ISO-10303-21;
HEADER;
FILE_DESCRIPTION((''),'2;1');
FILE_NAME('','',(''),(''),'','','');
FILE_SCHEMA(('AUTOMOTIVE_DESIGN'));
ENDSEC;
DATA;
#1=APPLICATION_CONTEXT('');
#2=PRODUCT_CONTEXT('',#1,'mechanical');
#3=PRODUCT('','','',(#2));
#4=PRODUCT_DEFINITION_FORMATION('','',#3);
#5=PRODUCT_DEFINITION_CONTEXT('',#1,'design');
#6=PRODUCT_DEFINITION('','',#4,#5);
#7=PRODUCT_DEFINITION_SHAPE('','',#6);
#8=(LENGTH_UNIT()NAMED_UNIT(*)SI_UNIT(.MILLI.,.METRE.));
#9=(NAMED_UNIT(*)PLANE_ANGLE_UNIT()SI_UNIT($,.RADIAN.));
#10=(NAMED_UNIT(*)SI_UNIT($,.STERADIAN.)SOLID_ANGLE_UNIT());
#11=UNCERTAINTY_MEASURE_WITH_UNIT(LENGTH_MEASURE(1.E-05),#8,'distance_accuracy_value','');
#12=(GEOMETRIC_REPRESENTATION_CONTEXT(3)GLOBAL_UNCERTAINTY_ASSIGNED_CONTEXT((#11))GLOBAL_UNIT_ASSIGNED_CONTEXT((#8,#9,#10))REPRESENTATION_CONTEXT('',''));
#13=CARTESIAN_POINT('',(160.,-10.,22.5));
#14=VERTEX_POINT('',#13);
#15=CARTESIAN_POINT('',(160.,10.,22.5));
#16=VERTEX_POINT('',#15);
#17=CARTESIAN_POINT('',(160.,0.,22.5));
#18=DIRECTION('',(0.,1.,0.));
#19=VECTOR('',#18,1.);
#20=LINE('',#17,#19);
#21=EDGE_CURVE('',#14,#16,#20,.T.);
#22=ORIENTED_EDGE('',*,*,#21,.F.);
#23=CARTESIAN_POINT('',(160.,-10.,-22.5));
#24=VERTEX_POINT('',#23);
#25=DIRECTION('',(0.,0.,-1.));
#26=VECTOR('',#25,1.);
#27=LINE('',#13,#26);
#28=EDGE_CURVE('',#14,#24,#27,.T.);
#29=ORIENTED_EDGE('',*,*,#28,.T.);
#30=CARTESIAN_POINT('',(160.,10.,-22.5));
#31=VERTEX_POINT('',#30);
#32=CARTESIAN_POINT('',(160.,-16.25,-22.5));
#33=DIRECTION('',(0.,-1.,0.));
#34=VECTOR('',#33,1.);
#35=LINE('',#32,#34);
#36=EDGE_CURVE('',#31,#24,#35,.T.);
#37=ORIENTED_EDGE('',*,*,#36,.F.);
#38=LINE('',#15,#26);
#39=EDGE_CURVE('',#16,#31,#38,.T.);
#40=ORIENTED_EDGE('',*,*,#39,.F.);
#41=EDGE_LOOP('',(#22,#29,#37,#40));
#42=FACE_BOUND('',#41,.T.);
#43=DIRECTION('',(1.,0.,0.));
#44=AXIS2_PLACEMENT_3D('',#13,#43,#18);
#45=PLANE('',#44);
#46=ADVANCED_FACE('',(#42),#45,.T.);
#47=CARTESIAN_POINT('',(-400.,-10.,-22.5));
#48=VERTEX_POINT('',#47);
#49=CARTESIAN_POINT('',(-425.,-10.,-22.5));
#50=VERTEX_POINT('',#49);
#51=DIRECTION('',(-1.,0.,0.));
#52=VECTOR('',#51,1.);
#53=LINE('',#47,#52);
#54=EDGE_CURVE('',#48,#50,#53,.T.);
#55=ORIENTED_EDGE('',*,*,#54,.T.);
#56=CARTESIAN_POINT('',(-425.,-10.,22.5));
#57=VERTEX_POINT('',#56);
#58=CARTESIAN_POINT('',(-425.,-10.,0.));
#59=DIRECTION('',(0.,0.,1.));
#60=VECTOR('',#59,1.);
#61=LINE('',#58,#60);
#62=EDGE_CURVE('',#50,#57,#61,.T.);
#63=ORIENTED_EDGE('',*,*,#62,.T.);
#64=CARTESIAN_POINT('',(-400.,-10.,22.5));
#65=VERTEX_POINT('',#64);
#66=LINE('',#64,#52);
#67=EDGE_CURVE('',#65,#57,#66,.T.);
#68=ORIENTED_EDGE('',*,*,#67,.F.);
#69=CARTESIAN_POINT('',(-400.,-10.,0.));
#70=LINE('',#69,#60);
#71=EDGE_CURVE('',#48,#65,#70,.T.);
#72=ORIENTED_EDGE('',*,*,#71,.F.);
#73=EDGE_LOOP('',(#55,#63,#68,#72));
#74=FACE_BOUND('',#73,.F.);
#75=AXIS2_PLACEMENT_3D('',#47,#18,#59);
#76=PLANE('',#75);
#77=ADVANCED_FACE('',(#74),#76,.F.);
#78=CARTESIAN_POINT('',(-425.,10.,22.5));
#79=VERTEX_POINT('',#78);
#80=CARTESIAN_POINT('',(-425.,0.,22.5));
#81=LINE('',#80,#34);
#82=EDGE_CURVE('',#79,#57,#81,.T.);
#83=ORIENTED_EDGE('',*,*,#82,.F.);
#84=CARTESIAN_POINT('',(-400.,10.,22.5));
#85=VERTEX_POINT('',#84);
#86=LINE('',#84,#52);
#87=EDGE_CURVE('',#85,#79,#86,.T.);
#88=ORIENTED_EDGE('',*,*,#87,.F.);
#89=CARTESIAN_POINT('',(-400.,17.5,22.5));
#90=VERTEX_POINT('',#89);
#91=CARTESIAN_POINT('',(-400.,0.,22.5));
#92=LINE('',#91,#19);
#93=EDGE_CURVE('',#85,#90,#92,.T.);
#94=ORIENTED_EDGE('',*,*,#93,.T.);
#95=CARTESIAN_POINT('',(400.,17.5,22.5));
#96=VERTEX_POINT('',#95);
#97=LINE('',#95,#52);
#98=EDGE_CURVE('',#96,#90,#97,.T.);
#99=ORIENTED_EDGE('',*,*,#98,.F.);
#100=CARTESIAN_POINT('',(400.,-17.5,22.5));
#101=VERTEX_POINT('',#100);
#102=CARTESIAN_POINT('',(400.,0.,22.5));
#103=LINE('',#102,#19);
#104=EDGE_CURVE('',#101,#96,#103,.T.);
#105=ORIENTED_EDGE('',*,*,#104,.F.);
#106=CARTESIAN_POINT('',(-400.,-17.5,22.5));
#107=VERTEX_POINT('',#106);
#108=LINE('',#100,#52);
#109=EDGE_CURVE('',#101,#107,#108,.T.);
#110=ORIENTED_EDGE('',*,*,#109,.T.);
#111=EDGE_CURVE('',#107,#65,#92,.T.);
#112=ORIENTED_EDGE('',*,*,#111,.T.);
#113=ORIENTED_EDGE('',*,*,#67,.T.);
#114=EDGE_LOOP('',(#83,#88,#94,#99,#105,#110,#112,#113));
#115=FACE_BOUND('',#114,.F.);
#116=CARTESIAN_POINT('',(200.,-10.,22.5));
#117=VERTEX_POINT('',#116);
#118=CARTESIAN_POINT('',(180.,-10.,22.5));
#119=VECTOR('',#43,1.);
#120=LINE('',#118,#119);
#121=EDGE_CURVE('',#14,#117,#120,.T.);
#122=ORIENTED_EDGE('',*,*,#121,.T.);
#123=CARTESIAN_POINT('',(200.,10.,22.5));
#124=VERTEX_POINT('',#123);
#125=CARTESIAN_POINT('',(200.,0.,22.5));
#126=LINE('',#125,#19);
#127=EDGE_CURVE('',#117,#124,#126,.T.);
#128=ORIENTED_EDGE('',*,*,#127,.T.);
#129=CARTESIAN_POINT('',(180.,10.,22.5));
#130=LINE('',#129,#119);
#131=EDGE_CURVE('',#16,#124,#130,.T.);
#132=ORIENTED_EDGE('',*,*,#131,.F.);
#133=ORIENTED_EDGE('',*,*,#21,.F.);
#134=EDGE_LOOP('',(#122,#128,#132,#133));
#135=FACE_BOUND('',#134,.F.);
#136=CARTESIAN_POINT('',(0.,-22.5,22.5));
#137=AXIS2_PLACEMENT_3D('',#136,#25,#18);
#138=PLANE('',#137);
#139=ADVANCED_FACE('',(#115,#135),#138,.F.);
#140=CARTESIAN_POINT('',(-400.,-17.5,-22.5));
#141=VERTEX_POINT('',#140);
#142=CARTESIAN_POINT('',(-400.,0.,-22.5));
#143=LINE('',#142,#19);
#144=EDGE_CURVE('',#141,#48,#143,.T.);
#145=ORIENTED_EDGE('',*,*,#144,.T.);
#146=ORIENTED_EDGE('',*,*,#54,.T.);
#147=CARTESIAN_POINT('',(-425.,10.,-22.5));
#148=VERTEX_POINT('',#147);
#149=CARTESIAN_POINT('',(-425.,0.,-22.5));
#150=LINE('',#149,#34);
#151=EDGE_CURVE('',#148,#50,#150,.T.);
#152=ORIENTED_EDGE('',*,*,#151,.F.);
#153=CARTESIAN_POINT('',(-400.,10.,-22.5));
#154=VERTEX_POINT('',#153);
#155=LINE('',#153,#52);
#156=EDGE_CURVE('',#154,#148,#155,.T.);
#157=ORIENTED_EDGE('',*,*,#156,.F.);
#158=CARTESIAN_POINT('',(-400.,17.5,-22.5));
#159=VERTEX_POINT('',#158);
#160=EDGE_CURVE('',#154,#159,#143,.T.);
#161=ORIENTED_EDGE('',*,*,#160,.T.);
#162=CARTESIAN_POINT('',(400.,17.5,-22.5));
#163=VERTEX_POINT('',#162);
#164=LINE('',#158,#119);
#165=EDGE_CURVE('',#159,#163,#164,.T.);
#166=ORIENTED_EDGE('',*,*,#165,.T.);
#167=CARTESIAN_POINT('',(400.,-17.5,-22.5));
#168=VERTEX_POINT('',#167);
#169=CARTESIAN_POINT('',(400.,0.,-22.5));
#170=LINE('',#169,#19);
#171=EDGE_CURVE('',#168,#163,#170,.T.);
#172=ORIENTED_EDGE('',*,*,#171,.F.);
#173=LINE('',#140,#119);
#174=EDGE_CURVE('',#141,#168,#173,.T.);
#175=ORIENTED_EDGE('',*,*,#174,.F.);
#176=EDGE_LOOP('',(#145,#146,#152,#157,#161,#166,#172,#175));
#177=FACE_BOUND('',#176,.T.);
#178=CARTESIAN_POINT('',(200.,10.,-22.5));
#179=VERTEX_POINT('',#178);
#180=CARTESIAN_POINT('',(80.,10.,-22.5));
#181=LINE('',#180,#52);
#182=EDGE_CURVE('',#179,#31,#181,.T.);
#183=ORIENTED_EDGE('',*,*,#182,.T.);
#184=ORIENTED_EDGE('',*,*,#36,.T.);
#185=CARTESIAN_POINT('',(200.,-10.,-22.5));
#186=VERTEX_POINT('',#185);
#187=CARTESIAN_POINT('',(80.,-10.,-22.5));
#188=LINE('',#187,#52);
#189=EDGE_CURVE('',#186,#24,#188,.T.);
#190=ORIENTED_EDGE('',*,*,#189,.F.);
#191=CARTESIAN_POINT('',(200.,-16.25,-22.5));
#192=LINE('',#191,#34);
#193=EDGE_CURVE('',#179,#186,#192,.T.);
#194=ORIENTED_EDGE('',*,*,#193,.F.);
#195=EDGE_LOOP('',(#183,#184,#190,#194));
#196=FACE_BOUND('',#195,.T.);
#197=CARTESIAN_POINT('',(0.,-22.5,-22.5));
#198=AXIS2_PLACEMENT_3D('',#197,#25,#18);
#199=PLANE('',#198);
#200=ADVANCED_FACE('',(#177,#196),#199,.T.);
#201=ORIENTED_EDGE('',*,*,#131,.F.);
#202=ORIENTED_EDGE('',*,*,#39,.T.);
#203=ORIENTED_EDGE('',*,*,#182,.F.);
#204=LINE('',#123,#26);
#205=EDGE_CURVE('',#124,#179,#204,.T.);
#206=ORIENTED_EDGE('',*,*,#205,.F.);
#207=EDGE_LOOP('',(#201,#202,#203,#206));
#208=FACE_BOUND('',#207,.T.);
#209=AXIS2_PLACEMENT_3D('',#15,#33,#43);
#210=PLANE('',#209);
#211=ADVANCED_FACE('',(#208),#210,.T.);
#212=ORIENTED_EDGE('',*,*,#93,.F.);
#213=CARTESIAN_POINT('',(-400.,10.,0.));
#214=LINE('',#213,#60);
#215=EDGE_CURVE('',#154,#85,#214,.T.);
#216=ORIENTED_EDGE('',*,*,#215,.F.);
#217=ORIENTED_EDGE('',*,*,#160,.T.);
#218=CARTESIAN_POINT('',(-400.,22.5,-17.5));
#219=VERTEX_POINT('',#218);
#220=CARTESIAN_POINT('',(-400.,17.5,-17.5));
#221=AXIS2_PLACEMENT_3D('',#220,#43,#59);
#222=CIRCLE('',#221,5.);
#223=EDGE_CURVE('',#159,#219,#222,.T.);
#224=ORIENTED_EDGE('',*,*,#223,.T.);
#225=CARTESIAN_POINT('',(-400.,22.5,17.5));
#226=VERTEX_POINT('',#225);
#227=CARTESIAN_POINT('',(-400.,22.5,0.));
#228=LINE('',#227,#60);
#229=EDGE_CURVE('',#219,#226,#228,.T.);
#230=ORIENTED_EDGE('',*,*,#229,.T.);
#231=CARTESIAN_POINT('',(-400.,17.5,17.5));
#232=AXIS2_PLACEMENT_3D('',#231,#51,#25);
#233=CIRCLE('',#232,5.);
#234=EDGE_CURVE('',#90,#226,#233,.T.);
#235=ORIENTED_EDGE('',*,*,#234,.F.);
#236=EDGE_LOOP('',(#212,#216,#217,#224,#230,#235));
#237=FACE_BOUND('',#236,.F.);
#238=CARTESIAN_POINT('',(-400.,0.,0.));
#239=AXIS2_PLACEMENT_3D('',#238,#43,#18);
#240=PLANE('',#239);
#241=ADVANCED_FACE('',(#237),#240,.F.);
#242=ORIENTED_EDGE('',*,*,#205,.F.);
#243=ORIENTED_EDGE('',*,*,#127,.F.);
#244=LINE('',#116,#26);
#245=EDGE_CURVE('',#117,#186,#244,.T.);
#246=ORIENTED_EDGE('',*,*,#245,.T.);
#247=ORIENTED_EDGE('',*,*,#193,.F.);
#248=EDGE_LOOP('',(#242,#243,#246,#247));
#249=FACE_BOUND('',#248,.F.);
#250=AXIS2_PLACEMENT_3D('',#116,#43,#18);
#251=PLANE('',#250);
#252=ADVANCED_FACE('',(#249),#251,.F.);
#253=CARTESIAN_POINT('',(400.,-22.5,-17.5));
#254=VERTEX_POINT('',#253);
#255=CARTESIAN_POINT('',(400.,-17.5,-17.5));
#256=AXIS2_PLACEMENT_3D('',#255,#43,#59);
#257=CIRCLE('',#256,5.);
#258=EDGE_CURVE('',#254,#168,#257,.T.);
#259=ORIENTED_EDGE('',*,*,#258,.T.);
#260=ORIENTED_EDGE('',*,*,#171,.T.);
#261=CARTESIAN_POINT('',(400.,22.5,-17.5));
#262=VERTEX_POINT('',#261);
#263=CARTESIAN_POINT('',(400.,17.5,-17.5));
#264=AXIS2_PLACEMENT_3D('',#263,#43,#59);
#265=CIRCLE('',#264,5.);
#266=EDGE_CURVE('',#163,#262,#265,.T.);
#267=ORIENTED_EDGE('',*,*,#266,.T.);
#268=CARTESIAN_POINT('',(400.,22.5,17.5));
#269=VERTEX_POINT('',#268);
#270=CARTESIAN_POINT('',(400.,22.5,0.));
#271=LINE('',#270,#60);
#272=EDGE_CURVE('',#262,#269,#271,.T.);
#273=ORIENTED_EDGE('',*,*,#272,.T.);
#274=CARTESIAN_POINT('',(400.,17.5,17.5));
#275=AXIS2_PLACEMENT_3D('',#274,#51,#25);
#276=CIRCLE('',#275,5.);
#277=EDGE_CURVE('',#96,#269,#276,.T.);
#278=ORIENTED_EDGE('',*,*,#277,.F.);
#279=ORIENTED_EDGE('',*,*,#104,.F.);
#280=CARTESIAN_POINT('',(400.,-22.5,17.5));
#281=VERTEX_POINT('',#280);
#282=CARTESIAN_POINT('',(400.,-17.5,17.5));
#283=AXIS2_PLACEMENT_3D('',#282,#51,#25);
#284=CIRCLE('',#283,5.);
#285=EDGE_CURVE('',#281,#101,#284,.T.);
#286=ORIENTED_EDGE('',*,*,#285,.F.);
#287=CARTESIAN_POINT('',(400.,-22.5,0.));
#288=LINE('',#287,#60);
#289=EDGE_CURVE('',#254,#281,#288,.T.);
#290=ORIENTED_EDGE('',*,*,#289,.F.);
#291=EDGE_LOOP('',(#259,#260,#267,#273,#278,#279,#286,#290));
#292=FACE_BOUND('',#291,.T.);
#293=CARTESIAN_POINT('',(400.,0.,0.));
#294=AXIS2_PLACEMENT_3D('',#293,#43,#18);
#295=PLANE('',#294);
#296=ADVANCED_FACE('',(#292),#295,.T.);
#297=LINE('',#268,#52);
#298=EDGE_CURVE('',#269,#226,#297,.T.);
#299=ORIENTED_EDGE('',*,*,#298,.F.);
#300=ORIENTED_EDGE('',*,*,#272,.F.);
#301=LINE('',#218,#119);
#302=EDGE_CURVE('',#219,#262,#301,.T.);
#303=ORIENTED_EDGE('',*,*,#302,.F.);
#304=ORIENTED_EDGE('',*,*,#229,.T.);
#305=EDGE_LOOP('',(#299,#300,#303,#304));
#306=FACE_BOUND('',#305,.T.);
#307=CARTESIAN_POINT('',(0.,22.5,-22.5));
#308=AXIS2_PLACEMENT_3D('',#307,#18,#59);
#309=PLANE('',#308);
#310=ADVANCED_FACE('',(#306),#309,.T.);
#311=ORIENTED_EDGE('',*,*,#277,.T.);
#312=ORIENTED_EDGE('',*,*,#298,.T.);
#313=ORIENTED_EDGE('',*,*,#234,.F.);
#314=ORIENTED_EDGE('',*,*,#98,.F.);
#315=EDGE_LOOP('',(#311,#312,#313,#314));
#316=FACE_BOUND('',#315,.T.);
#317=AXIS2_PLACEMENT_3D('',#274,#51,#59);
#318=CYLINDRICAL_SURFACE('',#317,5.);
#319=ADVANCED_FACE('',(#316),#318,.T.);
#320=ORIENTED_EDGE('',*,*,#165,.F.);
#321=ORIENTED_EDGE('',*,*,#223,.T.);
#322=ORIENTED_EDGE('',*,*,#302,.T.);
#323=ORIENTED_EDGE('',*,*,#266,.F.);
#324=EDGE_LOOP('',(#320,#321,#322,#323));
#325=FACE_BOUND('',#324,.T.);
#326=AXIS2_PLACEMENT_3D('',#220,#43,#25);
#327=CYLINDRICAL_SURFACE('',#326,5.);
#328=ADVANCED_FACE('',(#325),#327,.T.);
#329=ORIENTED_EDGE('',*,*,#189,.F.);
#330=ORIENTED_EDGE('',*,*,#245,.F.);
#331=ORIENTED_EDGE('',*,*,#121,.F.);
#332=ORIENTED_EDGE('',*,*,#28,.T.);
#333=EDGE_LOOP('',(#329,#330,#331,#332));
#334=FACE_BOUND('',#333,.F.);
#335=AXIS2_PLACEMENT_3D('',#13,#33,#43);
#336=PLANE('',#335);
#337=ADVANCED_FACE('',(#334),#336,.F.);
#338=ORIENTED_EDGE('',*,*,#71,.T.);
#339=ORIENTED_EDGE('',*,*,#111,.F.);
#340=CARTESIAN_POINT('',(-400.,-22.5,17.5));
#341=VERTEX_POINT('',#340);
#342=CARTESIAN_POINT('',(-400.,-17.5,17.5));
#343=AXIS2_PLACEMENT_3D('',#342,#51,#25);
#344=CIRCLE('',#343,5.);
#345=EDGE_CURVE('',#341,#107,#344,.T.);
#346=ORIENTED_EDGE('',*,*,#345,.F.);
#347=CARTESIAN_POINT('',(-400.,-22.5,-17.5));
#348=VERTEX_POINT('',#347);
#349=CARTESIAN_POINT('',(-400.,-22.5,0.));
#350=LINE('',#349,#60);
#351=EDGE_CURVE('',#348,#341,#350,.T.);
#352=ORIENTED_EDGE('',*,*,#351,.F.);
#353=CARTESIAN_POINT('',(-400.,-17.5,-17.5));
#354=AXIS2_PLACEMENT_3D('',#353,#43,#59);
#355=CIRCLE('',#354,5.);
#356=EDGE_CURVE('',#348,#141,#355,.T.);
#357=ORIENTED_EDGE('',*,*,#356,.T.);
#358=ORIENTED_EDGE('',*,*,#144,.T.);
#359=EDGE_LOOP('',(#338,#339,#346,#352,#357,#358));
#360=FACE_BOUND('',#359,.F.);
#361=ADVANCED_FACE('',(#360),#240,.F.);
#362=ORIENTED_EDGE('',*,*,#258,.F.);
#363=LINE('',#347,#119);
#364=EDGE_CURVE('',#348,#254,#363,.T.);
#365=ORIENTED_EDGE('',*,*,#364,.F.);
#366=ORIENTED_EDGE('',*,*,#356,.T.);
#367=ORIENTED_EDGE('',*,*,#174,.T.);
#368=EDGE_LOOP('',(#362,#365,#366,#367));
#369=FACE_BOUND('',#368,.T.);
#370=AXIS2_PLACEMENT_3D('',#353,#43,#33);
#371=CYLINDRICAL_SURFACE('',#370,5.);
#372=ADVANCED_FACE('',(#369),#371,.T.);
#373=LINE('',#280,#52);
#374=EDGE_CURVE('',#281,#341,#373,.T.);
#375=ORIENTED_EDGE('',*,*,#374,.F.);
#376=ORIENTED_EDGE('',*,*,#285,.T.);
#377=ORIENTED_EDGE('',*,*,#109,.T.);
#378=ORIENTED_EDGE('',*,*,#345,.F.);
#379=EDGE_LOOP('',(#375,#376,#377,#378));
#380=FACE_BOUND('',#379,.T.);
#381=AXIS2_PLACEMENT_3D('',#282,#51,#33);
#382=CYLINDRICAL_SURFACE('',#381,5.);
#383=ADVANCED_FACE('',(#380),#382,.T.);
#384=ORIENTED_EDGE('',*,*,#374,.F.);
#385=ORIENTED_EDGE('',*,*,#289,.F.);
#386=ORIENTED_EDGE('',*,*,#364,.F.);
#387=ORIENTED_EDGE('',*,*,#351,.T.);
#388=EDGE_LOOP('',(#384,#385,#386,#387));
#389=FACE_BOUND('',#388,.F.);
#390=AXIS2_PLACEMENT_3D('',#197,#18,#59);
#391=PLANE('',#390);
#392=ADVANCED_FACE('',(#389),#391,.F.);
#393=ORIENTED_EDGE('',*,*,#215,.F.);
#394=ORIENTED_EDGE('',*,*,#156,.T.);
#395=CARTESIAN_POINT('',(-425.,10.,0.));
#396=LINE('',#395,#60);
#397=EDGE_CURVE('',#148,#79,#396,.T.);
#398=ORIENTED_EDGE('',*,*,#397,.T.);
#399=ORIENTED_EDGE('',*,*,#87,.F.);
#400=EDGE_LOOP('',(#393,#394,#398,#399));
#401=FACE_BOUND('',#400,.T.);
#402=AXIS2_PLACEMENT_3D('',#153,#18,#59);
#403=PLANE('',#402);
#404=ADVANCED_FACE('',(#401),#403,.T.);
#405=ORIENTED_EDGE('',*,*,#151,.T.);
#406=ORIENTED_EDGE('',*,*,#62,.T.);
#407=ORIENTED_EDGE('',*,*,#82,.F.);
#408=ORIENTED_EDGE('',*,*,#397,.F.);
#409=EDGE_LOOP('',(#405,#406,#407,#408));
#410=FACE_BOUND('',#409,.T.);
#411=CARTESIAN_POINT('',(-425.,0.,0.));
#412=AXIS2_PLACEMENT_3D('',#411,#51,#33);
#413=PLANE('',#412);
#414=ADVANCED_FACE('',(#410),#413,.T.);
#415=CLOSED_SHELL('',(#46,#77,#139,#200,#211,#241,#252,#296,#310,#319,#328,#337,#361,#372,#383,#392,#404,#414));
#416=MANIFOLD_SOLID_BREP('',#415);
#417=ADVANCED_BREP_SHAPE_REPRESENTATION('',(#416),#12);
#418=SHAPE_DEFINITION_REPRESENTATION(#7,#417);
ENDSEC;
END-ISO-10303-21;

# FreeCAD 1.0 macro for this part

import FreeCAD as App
import Part
import Sketcher

V = App.Vector
Q = App.Units.Quantity


def edges_at(feature, points):
    """Names of the edges that pass closest to the given points."""
    edges = feature.Shape.Edges
    near = lambda p: min(range(len(edges)), key=lambda i: edges[i].distToShape(Part.Vertex(*p))[0])
    return sorted({f"Edge{near(p) + 1}" for p in points})


def add_polygon(sketch, points):
    """Adds a closed chain of lines whose ends are joined by coincident constraints."""
    first, n = sketch.GeometryCount, len(points)
    for a, b in zip(points, points[1:] + points[:1]):
        sketch.addGeometry(Part.LineSegment(App.Vector(*a, 0), App.Vector(*b, 0)), False)
    for i in range(n):
        sketch.addConstraint(Sketcher.Constraint("Coincident", first + i, 2, first + (i + 1) % n, 1))

doc = App.newDocument("Part")
body = doc.addObject("PartDesign::Body", "Body")

sketch1 = body.newObject("Sketcher::SketchObject", "Sketch")
sketch1.AttachmentSupport = (doc.getObject("YZ_Plane"), [""])
sketch1.MapMode = "FlatFace"
add_polygon(sketch1, [(-22, 22), (-22, -22), (22, -22), (22, 22)])
sketch1.addConstraint(Sketcher.Constraint("Vertical", 0))
sketch1.addConstraint(Sketcher.Constraint("Horizontal", 1))
sketch1.addConstraint(Sketcher.Constraint("Vertical", 2))
sketch1.addConstraint(Sketcher.Constraint("Horizontal", 3))
sketch1.addConstraint(Sketcher.Constraint("Symmetric", 0, 2, 2, 2, -1, 1))
sketch1.addConstraint(Sketcher.Constraint("Equal", 3, 0))
sketch1.addConstraint(Sketcher.Constraint("DistanceX", 1, 1, 1, 2, Q("45 mm")))
pad1 = body.newObject("PartDesign::Pad", "Pad")
pad1.Profile = sketch1
pad1.Length = 800
pad1.Midplane = True

sketch2 = body.newObject("Sketcher::SketchObject", "Sketch001")
sketch2.AttachmentSupport = (doc.getObject("YZ_Plane"), [""])
sketch2.MapMode = "FlatFace"
sketch2.AttachmentOffset = App.Placement(V(0, 0, -400), App.Rotation())
add_polygon(sketch2, [(10, 22), (10, -22), (-10, -22), (-10, 22)])
sketch2.addConstraint(Sketcher.Constraint("Vertical", 0))
sketch2.addConstraint(Sketcher.Constraint("Horizontal", 1))
sketch2.addConstraint(Sketcher.Constraint("Vertical", 2))
sketch2.addConstraint(Sketcher.Constraint("Horizontal", 3))
sketch2.addConstraint(Sketcher.Constraint("Symmetric", 0, 2, 2, 2, -1, 1))
sketch2.addConstraint(Sketcher.Constraint("DistanceX", 1, 2, 1, 1, Q("20 mm")))
sketch2.addConstraint(Sketcher.Constraint("DistanceY", 0, 2, 0, 1, Q("45 mm")))
pad2 = body.newObject("PartDesign::Pad", "Pad001")
pad2.Profile = sketch2
pad2.Length = 25
pad2.Reversed = True
doc.recompute()

fillet = body.newObject("PartDesign::Fillet", "Fillet")
fillet.Base = (pad2, edges_at(pad2, [
    (0, -22.5, -22.5),
    (0, 22.5, -22.5),
    (0, -22.5, 22.5),
    (0, 22.5, 22.5),
]))
fillet.Radius = 5

sketch3 = body.newObject("Sketcher::SketchObject", "Sketch002")
sketch3.AttachmentSupport = (doc.getObject("XY_Plane"), [""])
sketch3.MapMode = "FlatFace"
sketch3.AttachmentOffset = App.Placement(V(0, 0, 22.5), App.Rotation())
add_polygon(sketch3, [(160, 10), (160, -10), (200, -10), (200, 10)])
sketch3.addConstraint(Sketcher.Constraint("Vertical", 0))
sketch3.addConstraint(Sketcher.Constraint("Horizontal", 1))
sketch3.addConstraint(Sketcher.Constraint("Vertical", 2))
sketch3.addConstraint(Sketcher.Constraint("Horizontal", 3))
sketch3.addConstraint(Sketcher.Constraint("DistanceX", 1, 1, 1, 2, Q("40 mm")))
sketch3.addConstraint(Sketcher.Constraint("DistanceY", 0, 2, 0, 1, Q("20 mm")))
sketch3.addConstraint(Sketcher.Constraint("DistanceX", -1, 1, 0, 2, Q("160 mm")))
sketch3.addConstraint(Sketcher.Constraint("DistanceY", 0, 2, -1, 1, Q("10 mm")))
pocket1 = body.newObject("PartDesign::Pocket", "Pocket")
pocket1.Profile = sketch3
pocket1.Type = "ThroughAll"

doc.recompute()
